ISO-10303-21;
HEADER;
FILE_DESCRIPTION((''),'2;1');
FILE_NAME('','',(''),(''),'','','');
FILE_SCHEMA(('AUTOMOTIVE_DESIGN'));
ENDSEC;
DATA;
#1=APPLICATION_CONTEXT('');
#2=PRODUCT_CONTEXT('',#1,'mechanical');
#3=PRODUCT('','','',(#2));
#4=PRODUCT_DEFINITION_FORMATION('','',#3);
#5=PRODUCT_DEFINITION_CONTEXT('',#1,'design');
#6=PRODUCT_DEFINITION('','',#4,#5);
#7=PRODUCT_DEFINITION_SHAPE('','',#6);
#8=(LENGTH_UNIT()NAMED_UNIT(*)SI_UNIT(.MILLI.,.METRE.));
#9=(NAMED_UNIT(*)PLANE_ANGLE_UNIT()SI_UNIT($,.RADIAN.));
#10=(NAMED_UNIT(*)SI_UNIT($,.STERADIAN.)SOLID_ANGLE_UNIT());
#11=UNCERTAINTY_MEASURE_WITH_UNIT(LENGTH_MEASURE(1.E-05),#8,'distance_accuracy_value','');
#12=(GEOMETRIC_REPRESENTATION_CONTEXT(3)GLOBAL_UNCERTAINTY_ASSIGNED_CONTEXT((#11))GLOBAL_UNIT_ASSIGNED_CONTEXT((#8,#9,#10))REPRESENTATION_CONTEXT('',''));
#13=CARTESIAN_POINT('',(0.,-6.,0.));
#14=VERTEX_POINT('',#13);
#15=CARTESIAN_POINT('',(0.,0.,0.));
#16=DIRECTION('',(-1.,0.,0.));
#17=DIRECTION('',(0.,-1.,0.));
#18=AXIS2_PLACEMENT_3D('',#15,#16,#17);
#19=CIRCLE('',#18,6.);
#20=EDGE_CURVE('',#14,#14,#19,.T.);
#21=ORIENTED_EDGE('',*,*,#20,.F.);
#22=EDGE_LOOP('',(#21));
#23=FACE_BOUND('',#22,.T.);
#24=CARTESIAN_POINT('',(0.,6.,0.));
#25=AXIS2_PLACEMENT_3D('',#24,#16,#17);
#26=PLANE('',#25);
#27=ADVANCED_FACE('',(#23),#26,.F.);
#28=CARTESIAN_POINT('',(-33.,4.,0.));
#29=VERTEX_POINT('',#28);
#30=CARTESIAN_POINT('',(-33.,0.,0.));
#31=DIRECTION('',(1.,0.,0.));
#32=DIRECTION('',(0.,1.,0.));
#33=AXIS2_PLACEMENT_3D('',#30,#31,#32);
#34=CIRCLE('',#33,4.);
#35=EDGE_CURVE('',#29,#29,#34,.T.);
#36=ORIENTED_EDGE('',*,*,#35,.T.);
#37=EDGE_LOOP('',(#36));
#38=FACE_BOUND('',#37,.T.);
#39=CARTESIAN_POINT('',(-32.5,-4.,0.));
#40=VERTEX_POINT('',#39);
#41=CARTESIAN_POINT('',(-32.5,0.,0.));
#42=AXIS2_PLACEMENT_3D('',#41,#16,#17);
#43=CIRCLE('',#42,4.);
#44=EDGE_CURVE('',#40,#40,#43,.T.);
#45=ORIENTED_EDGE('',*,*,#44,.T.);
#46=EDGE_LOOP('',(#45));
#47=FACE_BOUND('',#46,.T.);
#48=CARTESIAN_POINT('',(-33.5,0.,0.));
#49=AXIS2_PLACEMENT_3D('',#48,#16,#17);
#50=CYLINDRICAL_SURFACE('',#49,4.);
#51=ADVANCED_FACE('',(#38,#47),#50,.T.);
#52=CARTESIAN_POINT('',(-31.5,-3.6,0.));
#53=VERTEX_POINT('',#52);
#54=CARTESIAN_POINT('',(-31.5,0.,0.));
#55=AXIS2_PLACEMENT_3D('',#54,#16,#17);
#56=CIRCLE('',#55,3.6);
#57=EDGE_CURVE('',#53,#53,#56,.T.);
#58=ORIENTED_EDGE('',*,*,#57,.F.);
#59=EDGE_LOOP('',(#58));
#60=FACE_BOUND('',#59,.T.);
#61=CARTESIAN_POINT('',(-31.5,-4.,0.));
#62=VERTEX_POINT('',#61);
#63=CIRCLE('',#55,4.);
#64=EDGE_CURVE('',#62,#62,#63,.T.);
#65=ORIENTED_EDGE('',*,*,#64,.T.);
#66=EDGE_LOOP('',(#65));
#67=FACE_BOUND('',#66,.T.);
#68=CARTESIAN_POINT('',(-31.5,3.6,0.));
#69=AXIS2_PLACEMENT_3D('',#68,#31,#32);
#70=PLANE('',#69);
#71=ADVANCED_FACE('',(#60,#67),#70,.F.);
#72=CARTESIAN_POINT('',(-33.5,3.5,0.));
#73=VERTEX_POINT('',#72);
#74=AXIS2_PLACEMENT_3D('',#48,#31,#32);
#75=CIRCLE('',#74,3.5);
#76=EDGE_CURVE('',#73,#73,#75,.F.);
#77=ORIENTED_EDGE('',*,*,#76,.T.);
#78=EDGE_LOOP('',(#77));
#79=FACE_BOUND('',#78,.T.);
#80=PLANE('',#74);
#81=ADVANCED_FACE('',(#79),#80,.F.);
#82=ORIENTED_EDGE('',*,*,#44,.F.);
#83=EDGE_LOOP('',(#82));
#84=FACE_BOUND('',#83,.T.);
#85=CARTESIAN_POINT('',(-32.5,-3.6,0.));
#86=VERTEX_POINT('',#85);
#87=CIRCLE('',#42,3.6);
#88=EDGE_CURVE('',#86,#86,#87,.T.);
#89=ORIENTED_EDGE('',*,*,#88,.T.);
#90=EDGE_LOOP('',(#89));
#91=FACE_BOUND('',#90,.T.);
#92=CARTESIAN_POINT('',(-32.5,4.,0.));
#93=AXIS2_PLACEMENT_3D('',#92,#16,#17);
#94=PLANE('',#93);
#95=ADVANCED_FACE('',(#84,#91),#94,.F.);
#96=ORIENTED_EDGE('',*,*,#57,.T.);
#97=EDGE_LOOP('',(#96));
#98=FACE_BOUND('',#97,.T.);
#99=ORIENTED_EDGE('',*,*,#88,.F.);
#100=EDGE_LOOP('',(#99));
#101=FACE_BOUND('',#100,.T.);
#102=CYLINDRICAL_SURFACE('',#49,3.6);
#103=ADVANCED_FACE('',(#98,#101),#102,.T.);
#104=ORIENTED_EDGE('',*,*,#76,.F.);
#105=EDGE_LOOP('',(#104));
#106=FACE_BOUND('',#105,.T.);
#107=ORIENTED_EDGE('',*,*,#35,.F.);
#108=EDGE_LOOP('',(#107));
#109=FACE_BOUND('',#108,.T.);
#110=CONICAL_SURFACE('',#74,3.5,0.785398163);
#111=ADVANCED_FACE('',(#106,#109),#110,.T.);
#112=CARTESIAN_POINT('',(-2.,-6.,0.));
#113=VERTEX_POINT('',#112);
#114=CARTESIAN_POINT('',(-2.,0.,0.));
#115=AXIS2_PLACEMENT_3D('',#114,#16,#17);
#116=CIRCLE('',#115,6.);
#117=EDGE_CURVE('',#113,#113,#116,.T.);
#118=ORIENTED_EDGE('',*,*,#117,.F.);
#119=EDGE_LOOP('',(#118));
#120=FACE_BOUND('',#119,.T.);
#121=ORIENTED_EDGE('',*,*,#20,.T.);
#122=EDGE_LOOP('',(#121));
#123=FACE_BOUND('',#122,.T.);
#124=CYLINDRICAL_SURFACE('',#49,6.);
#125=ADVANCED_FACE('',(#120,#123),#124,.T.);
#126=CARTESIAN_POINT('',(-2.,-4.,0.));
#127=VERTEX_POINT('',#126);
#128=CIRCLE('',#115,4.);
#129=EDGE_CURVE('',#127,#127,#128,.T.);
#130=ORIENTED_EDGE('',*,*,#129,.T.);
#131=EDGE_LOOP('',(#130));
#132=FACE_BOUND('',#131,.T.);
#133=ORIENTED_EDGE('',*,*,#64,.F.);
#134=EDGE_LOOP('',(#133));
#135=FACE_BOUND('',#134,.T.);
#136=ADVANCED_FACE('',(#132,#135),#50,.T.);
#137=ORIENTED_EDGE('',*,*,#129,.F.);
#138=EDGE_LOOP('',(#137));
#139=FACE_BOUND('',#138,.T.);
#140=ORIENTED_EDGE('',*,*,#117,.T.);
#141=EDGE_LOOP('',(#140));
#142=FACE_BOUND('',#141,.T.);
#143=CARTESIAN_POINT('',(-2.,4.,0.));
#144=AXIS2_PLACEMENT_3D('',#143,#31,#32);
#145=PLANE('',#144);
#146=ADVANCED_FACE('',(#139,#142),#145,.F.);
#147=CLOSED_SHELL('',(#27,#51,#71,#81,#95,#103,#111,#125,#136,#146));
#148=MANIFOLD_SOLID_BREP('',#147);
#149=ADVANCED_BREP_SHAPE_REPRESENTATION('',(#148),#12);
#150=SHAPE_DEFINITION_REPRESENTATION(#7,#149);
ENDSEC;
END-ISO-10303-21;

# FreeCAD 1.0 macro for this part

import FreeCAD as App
import Part
import Sketcher
from FreeCAD import Vector


def edges_at(feature, points):
    """Names of the edges that pass closest to the given points."""
    edges = feature.Shape.Edges
    near = lambda p: min(range(len(edges)), key=lambda i: edges[i].distToShape(Part.Vertex(*p))[0])
    return sorted({f"Edge{near(p) + 1}" for p in points})


def add_polygon(sketch, points):
    """Adds a closed chain of lines whose ends are joined by coincident constraints."""
    first, n = sketch.GeometryCount, len(points)
    for a, b in zip(points, points[1:] + points[:1]):
        sketch.addGeometry(Part.LineSegment(App.Vector(*a, 0), App.Vector(*b, 0)), False)
    for i in range(n):
        sketch.addConstraint(Sketcher.Constraint("Coincident", first + i, 2, first + (i + 1) % n, 1))

doc = App.newDocument("Part")
body = doc.addObject("PartDesign::Body", "Body")

# Sketch on XY plane
sketch1 = body.newObject("Sketcher::SketchObject", "Sketch")
sketch1.AttachmentSupport = (doc.getObject("XY_Plane"), [""])
sketch1.MapMode = "FlatFace"
add_polygon(sketch1, [(-33.5, 0), (0, 0), (0, 6), (-2, 6), (-2, 4), (-31.5, 4), (-31.5, 3.6), (-32.5, 3.6), (-32.5, 4), (-33.5, 4)])  # lines 0-9
sketch1.addConstraint(Sketcher.Constraint("Horizontal", 0))
sketch1.addConstraint(Sketcher.Constraint("Vertical", 1))
sketch1.addConstraint(Sketcher.Constraint("Horizontal", 2))
sketch1.addConstraint(Sketcher.Constraint("Vertical", 3))
sketch1.addConstraint(Sketcher.Constraint("Horizontal", 4))
sketch1.addConstraint(Sketcher.Constraint("Vertical", 5))
sketch1.addConstraint(Sketcher.Constraint("Horizontal", 6))
sketch1.addConstraint(Sketcher.Constraint("Vertical", 7))
sketch1.addConstraint(Sketcher.Constraint("Horizontal", 8))
sketch1.addConstraint(Sketcher.Constraint("Vertical", 9))
sketch1.addConstraint(Sketcher.Constraint("Coincident", 0, 2, -1, 1))
sketch1.addConstraint(Sketcher.Constraint("Horizontal", 4, 2, 7, 2))
sketch1.addConstraint(Sketcher.Constraint("Equal", 6, 8))
sketch1.addConstraint(Sketcher.Constraint("Equal", 2, 3))
sketch1.addConstraint(Sketcher.Constraint("DistanceX", 2, 2, 2, 1, 2.0))
sketch1.addConstraint(Sketcher.Constraint("DistanceX", 6, 2, 6, 1, 1.0))
sketch1.addConstraint(Sketcher.Constraint("DistanceY", 1, 1, 1, 2, 6.0))
sketch1.addConstraint(Sketcher.Constraint("DistanceX", 0, 1, 0, 2, 33.5))
sketch1.addConstraint(Sketcher.Constraint("DistanceY", 5, 2, 5, 1, 0.4))
revolution = body.newObject("PartDesign::Revolution", "Revolution")
revolution.Profile = sketch1
revolution.ReferenceAxis = (sketch1, ["H_Axis"])
revolution.Angle = 360
doc.recompute()

chamfer = body.newObject("PartDesign::Chamfer", "Chamfer")
chamfer.Base = (revolution, edges_at(revolution, [(-33.5, 4, 0)]))
chamfer.Size = 0.5

doc.recompute()
